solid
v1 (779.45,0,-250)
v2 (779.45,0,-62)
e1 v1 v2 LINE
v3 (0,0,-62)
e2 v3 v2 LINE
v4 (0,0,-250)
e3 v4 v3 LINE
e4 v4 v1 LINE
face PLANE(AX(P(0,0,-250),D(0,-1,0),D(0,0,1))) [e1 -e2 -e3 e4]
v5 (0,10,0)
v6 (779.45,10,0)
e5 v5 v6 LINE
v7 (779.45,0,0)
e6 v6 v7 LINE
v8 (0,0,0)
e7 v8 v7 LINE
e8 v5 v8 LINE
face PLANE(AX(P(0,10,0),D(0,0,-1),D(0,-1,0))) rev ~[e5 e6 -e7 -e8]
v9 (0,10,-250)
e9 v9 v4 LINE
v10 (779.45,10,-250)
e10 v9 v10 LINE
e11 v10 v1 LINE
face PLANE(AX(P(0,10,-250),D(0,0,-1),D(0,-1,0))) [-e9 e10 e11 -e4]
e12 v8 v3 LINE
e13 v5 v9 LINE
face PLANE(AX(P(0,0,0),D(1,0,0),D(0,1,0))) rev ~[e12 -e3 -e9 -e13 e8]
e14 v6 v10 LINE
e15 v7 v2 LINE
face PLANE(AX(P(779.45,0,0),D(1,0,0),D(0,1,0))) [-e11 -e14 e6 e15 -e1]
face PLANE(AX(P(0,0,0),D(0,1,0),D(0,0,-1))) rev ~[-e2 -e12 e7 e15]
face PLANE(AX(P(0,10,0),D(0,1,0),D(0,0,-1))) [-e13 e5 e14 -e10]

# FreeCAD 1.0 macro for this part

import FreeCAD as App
import Part
import Sketcher

V = App.Vector
Q = App.Units.Quantity


def add_polygon(sketch, points):
    """Adds a closed chain of lines whose ends are joined by coincident constraints."""
    first, n = sketch.GeometryCount, len(points)
    for a, b in zip(points, points[1:] + points[:1]):
        sketch.addGeometry(Part.LineSegment(App.Vector(*a, 0), App.Vector(*b, 0)), False)
    for i in range(n):
        sketch.addConstraint(Sketcher.Constraint("Coincident", first + i, 2, first + (i + 1) % n, 1))

doc = App.newDocument("Part")
params = doc.addObject("Spreadsheet::Sheet", "Params")
for row, (alias, value) in enumerate([
    ("sketch1_width", "10 mm"),
    ("sketch1_height", "250 mm"),
    ("pad1_length", "779.45 mm"),
], start=1):
    params.set(f"A{row}", alias)
    params.set(f"B{row}", "=" + value)
    params.setAlias(f"B{row}", alias)

body = doc.addObject("PartDesign::Body", "Body")

sketch1 = doc.addObject("Sketcher::SketchObject", "Sketch")
body.addObject(sketch1)
sketch1.AttachmentSupport = (doc.YZ_Plane, [""])
sketch1.MapMode = "FlatFace"
add_polygon(sketch1, [(10, 0), (0, 0), (0, -250), (10, -250)])
sketch1.addConstraint(Sketcher.Constraint("Horizontal", 0))
sketch1.addConstraint(Sketcher.Constraint("Vertical", 1))
sketch1.addConstraint(Sketcher.Constraint("Horizontal", 2))
sketch1.addConstraint(Sketcher.Constraint("Vertical", 3))
sketch1.addConstraint(Sketcher.Constraint("Coincident", 0, 2, -1, 1))
sketch1.addConstraint(Sketcher.Constraint("DistanceX", 0, 2, 0, 1, Q("10 mm")))
sketch1.addConstraint(Sketcher.Constraint("DistanceY", 1, 2, 1, 1, Q("250 mm")))
sketch1.setExpression("Constraints[9]", "Params.sketch1_width")
sketch1.setExpression("Constraints[10]", "Params.sketch1_height")
pad1 = doc.addObject("PartDesign::Pad", "Pad")
body.addObject(pad1)
pad1.Profile = sketch1
pad1.setExpression("Length", "Params.pad1_length")

doc.recompute()
